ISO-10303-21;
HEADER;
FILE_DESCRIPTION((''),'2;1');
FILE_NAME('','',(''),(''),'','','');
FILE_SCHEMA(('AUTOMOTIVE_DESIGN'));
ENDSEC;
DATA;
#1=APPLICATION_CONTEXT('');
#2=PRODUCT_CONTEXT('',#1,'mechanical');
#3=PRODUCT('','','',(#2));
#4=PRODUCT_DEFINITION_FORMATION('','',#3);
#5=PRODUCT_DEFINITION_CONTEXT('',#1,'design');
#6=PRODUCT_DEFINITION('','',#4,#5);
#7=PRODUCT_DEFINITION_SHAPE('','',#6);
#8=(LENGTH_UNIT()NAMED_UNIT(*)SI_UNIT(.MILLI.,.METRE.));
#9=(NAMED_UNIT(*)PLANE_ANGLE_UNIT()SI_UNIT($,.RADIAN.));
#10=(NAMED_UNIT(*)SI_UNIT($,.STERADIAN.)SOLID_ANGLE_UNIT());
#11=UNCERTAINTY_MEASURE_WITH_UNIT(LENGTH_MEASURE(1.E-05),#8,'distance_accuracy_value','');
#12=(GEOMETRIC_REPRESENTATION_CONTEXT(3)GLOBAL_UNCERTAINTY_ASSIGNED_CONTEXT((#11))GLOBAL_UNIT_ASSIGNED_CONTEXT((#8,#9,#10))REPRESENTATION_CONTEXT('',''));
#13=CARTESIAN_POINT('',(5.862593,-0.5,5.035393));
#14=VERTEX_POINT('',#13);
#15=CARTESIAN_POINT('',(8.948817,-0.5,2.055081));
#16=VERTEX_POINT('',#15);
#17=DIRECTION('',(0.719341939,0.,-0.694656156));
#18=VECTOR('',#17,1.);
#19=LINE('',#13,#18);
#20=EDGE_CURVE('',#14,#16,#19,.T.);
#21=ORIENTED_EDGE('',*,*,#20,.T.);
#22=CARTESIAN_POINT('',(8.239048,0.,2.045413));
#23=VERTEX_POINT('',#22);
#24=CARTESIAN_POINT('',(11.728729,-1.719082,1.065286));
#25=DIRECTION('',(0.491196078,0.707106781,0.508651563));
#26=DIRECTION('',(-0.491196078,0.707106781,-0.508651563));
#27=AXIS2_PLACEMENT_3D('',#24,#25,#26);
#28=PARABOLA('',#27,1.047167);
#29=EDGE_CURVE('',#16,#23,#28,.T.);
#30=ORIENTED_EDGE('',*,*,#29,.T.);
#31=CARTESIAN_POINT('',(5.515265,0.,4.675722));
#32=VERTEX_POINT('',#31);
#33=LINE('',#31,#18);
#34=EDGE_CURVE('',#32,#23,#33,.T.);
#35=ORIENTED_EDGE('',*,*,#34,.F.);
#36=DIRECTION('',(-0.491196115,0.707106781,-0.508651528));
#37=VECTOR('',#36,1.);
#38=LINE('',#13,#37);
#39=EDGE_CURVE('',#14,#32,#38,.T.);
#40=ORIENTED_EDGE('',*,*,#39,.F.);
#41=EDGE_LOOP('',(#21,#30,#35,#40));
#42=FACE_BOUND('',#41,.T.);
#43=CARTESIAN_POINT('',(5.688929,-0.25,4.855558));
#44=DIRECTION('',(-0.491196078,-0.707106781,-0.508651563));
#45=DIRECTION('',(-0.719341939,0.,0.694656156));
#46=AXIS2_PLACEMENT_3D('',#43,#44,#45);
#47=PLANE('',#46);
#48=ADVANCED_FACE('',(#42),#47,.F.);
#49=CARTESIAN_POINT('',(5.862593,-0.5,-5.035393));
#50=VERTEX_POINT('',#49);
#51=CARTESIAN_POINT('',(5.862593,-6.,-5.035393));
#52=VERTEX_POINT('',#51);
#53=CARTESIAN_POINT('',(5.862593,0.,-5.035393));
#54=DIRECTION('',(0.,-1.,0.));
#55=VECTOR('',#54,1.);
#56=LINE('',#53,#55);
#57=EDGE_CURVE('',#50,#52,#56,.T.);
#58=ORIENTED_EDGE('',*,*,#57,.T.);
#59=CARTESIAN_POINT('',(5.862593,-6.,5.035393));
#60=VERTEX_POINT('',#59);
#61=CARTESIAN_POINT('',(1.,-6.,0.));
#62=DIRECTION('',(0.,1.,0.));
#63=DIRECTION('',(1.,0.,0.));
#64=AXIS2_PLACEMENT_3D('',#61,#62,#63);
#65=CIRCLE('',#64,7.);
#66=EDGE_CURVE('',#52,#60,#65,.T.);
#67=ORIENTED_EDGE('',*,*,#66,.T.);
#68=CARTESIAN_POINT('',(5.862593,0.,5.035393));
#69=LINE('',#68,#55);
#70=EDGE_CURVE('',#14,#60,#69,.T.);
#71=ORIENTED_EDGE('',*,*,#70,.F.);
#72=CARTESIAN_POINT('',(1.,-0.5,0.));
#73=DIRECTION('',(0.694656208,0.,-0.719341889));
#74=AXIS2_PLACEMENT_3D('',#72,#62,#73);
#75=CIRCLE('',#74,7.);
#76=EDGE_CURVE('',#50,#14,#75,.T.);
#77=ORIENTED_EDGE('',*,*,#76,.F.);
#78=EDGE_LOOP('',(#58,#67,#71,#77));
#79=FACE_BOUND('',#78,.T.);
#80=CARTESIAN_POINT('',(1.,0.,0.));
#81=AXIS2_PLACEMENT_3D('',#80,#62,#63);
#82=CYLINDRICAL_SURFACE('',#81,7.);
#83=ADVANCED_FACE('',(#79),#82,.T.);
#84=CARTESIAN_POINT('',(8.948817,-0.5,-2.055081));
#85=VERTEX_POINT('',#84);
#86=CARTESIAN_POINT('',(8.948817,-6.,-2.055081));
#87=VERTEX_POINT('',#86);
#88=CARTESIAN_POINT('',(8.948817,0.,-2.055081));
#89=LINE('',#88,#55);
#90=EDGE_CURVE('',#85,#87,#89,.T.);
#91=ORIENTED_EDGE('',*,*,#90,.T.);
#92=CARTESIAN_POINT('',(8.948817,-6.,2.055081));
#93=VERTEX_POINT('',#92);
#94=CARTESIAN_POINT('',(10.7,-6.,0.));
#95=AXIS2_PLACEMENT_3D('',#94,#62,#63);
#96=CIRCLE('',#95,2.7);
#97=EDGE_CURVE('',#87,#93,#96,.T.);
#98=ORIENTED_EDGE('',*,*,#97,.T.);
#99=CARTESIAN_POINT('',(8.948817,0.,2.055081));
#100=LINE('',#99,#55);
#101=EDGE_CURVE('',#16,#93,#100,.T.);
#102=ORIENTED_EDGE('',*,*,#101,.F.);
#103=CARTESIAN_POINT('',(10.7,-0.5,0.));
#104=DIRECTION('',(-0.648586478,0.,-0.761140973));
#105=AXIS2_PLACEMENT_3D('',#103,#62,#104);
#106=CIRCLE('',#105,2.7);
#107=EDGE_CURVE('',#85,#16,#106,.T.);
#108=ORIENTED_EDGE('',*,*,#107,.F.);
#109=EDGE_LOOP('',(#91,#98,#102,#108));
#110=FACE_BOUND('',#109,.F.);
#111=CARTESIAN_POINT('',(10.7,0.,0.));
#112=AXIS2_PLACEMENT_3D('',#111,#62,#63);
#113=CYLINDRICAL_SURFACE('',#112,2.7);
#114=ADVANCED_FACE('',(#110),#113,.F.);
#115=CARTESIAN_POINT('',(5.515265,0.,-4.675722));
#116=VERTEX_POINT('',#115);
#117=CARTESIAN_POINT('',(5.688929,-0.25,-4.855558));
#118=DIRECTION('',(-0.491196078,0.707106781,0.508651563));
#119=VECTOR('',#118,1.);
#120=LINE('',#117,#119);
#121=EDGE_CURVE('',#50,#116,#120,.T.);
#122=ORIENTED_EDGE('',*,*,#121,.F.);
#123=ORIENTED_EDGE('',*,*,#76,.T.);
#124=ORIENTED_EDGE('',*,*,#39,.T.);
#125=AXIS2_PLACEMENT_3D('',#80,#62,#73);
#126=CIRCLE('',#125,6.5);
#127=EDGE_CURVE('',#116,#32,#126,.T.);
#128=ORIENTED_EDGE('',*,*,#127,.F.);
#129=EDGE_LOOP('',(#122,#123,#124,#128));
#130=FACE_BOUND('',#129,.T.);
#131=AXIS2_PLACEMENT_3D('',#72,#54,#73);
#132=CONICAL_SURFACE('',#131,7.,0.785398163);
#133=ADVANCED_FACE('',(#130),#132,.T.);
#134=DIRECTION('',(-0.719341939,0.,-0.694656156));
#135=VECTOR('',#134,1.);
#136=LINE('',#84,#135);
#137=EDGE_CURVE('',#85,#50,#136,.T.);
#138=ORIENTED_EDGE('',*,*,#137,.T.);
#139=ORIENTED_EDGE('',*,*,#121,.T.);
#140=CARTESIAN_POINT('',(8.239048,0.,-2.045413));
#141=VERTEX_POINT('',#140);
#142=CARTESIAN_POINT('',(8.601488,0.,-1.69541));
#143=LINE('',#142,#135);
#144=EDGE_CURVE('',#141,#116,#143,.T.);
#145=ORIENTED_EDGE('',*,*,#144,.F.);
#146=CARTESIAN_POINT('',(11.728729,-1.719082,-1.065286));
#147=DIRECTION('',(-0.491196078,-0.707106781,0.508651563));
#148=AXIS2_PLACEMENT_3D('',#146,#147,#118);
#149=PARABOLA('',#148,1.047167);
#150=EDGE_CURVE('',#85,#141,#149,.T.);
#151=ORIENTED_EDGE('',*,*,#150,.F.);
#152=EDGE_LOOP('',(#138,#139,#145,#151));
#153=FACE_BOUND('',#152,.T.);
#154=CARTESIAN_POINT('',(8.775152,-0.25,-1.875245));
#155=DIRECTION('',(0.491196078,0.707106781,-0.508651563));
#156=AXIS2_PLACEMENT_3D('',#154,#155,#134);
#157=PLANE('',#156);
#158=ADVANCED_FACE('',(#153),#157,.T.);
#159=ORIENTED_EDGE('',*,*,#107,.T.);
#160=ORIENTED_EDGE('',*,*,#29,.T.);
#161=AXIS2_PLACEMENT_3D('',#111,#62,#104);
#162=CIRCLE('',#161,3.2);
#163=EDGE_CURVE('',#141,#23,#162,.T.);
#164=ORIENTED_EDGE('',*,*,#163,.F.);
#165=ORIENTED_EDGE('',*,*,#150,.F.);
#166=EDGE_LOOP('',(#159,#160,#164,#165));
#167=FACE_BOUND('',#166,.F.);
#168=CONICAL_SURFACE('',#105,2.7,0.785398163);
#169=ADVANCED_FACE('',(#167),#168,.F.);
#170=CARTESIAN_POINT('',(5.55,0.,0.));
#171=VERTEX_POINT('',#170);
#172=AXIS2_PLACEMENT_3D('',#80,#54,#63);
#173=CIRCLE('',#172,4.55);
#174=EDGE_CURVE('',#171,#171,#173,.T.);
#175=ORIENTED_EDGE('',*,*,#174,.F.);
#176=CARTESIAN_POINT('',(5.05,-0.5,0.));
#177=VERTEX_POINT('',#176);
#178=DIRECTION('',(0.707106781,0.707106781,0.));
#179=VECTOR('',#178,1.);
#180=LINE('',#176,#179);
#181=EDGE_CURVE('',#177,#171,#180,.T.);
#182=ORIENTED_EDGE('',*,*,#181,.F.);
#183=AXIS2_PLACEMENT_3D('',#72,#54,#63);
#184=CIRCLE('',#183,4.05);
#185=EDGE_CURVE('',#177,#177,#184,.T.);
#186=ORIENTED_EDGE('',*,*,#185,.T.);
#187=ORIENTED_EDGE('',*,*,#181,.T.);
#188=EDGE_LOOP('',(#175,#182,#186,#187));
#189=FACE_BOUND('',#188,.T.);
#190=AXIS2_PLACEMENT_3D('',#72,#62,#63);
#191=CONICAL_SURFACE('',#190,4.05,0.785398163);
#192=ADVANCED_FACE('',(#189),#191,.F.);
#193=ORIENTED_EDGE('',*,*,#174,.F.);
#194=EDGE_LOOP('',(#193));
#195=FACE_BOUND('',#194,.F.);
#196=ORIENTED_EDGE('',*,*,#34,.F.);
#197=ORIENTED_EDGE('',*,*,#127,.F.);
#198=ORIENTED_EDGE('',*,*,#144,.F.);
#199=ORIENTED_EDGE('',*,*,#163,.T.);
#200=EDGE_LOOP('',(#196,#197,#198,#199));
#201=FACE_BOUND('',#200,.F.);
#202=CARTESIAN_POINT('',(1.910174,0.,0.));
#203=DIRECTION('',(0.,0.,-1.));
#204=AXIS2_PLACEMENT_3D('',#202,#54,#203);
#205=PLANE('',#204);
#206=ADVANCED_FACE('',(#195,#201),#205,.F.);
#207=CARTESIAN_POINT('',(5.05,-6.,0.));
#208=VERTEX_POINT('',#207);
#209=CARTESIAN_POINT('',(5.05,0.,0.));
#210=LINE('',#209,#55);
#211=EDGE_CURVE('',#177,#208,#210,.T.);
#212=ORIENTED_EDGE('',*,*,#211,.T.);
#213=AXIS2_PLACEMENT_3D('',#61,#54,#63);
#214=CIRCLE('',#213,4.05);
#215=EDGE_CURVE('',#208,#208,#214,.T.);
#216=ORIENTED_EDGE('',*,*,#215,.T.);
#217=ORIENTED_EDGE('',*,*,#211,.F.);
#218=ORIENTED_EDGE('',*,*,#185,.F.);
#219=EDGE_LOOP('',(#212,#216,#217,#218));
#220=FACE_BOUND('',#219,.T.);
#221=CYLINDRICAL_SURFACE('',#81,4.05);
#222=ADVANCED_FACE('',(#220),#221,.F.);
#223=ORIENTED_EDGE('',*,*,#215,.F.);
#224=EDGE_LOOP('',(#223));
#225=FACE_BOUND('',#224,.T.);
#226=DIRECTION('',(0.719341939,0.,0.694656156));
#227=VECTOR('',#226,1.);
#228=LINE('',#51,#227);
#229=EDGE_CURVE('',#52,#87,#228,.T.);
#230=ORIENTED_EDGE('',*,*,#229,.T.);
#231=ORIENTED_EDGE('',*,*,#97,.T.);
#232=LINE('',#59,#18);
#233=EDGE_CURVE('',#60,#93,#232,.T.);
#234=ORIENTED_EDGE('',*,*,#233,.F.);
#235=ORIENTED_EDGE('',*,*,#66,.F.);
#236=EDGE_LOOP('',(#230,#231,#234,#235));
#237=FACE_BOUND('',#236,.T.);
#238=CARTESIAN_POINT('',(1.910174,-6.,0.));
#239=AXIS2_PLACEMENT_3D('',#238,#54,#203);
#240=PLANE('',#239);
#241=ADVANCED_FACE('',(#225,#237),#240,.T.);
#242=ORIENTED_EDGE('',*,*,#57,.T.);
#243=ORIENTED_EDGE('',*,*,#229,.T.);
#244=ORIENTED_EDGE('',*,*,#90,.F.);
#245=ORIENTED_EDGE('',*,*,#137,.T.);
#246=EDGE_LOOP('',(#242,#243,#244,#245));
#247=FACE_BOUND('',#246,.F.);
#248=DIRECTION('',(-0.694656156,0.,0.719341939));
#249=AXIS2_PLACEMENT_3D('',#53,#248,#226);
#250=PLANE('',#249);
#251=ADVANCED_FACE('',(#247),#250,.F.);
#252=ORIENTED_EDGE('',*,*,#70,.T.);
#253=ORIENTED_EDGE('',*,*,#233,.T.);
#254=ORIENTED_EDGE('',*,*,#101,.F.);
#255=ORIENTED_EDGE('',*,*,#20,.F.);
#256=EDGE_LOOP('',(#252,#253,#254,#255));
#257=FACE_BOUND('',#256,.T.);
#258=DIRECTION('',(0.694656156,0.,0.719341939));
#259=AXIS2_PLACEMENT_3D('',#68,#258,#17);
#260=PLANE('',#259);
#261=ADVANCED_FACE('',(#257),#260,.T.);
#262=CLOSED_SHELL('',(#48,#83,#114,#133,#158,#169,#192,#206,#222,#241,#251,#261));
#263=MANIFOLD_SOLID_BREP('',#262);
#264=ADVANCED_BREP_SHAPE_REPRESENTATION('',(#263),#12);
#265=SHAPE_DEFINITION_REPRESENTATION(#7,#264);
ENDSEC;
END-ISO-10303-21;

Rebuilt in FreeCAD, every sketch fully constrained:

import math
import FreeCAD as App
import Part
import Sketcher

V = App.Vector
Q = App.Units.Quantity


def edges_at(feature, points):
    """Names of the edges that pass closest to the given points."""
    edges = feature.Shape.Edges
    near = lambda p: min(range(len(edges)), key=lambda i: edges[i].distToShape(Part.Vertex(*p))[0])
    return sorted({f"Edge{near(p) + 1}" for p in points})

doc = App.newDocument("Part")
body = doc.addObject("PartDesign::Body", "Body")

# Sketch on XZ plane
sketch1 = body.newObject("Sketcher::SketchObject", "Sketch")
sketch1.AttachmentSupport = (doc.getObject("XZ_Plane"), [""])
sketch1.MapMode = "FlatFace"
sketch1.addGeometry([
    Part.ArcOfCircle(Part.Circle(V(1, 0, 0), V(0, 0, 1), 7), math.radians(46), math.radians(314)),  # 0
    Part.LineSegment(V(5.9, -5, 0), V(8.9, -2.1, 0)),  # 1
    Part.ArcOfCircle(Part.Circle(V(10.7, 0, 0), V(0, 0, 1), 2.7), math.radians(130), math.radians(230)),  # 2
    Part.LineSegment(V(8.9, 2.1, 0), V(5.9, 5, 0)),  # 3
    Part.Circle(V(1, 0, 0), V(0, 0, 1), 4),  # 4
], False)
sketch1.addConstraint([
    Sketcher.Constraint("Tangent", 0, 2, 1, 1),
    Sketcher.Constraint("Coincident", 1, 2, 2, 2),
    Sketcher.Constraint("Coincident", 2, 1, 3, 1),
    Sketcher.Constraint("Tangent", 3, 2, 0, 1),
    Sketcher.Constraint("Coincident", 4, 3, 0, 3),
    Sketcher.Constraint("Symmetric", 1, 2, 2, 1, -1),
    Sketcher.Constraint("PointOnObject", 0, 3, -1),
    Sketcher.Constraint("Radius", 0, 7.0),
    Sketcher.Constraint("Diameter", 4, 8.1),
    Sketcher.Constraint("Radius", 2, 2.7),
    Sketcher.Constraint("Angle", 1, Q("44 deg")),
    Sketcher.Constraint("DistanceX", -1, 1, 0, 3, 1.0),
    Sketcher.Constraint("DistanceX", -1, 1, 2, 3, 10.7),
])
pad1 = body.newObject("PartDesign::Pad", "Pad")
pad1.Profile = sketch1
pad1.Length = 6
doc.recompute()

chamfer = body.newObject("PartDesign::Chamfer", "Chamfer")
chamfer.Base = (pad1, edges_at(pad1, [
    (-6, 0, 0),
    (7.406, 0, -3.545),
    (7.406, 0, 3.545),
    (-3.05, 0, 0),
    (8, 0, 0),
]))
chamfer.Size = 0.5

doc.recompute()
